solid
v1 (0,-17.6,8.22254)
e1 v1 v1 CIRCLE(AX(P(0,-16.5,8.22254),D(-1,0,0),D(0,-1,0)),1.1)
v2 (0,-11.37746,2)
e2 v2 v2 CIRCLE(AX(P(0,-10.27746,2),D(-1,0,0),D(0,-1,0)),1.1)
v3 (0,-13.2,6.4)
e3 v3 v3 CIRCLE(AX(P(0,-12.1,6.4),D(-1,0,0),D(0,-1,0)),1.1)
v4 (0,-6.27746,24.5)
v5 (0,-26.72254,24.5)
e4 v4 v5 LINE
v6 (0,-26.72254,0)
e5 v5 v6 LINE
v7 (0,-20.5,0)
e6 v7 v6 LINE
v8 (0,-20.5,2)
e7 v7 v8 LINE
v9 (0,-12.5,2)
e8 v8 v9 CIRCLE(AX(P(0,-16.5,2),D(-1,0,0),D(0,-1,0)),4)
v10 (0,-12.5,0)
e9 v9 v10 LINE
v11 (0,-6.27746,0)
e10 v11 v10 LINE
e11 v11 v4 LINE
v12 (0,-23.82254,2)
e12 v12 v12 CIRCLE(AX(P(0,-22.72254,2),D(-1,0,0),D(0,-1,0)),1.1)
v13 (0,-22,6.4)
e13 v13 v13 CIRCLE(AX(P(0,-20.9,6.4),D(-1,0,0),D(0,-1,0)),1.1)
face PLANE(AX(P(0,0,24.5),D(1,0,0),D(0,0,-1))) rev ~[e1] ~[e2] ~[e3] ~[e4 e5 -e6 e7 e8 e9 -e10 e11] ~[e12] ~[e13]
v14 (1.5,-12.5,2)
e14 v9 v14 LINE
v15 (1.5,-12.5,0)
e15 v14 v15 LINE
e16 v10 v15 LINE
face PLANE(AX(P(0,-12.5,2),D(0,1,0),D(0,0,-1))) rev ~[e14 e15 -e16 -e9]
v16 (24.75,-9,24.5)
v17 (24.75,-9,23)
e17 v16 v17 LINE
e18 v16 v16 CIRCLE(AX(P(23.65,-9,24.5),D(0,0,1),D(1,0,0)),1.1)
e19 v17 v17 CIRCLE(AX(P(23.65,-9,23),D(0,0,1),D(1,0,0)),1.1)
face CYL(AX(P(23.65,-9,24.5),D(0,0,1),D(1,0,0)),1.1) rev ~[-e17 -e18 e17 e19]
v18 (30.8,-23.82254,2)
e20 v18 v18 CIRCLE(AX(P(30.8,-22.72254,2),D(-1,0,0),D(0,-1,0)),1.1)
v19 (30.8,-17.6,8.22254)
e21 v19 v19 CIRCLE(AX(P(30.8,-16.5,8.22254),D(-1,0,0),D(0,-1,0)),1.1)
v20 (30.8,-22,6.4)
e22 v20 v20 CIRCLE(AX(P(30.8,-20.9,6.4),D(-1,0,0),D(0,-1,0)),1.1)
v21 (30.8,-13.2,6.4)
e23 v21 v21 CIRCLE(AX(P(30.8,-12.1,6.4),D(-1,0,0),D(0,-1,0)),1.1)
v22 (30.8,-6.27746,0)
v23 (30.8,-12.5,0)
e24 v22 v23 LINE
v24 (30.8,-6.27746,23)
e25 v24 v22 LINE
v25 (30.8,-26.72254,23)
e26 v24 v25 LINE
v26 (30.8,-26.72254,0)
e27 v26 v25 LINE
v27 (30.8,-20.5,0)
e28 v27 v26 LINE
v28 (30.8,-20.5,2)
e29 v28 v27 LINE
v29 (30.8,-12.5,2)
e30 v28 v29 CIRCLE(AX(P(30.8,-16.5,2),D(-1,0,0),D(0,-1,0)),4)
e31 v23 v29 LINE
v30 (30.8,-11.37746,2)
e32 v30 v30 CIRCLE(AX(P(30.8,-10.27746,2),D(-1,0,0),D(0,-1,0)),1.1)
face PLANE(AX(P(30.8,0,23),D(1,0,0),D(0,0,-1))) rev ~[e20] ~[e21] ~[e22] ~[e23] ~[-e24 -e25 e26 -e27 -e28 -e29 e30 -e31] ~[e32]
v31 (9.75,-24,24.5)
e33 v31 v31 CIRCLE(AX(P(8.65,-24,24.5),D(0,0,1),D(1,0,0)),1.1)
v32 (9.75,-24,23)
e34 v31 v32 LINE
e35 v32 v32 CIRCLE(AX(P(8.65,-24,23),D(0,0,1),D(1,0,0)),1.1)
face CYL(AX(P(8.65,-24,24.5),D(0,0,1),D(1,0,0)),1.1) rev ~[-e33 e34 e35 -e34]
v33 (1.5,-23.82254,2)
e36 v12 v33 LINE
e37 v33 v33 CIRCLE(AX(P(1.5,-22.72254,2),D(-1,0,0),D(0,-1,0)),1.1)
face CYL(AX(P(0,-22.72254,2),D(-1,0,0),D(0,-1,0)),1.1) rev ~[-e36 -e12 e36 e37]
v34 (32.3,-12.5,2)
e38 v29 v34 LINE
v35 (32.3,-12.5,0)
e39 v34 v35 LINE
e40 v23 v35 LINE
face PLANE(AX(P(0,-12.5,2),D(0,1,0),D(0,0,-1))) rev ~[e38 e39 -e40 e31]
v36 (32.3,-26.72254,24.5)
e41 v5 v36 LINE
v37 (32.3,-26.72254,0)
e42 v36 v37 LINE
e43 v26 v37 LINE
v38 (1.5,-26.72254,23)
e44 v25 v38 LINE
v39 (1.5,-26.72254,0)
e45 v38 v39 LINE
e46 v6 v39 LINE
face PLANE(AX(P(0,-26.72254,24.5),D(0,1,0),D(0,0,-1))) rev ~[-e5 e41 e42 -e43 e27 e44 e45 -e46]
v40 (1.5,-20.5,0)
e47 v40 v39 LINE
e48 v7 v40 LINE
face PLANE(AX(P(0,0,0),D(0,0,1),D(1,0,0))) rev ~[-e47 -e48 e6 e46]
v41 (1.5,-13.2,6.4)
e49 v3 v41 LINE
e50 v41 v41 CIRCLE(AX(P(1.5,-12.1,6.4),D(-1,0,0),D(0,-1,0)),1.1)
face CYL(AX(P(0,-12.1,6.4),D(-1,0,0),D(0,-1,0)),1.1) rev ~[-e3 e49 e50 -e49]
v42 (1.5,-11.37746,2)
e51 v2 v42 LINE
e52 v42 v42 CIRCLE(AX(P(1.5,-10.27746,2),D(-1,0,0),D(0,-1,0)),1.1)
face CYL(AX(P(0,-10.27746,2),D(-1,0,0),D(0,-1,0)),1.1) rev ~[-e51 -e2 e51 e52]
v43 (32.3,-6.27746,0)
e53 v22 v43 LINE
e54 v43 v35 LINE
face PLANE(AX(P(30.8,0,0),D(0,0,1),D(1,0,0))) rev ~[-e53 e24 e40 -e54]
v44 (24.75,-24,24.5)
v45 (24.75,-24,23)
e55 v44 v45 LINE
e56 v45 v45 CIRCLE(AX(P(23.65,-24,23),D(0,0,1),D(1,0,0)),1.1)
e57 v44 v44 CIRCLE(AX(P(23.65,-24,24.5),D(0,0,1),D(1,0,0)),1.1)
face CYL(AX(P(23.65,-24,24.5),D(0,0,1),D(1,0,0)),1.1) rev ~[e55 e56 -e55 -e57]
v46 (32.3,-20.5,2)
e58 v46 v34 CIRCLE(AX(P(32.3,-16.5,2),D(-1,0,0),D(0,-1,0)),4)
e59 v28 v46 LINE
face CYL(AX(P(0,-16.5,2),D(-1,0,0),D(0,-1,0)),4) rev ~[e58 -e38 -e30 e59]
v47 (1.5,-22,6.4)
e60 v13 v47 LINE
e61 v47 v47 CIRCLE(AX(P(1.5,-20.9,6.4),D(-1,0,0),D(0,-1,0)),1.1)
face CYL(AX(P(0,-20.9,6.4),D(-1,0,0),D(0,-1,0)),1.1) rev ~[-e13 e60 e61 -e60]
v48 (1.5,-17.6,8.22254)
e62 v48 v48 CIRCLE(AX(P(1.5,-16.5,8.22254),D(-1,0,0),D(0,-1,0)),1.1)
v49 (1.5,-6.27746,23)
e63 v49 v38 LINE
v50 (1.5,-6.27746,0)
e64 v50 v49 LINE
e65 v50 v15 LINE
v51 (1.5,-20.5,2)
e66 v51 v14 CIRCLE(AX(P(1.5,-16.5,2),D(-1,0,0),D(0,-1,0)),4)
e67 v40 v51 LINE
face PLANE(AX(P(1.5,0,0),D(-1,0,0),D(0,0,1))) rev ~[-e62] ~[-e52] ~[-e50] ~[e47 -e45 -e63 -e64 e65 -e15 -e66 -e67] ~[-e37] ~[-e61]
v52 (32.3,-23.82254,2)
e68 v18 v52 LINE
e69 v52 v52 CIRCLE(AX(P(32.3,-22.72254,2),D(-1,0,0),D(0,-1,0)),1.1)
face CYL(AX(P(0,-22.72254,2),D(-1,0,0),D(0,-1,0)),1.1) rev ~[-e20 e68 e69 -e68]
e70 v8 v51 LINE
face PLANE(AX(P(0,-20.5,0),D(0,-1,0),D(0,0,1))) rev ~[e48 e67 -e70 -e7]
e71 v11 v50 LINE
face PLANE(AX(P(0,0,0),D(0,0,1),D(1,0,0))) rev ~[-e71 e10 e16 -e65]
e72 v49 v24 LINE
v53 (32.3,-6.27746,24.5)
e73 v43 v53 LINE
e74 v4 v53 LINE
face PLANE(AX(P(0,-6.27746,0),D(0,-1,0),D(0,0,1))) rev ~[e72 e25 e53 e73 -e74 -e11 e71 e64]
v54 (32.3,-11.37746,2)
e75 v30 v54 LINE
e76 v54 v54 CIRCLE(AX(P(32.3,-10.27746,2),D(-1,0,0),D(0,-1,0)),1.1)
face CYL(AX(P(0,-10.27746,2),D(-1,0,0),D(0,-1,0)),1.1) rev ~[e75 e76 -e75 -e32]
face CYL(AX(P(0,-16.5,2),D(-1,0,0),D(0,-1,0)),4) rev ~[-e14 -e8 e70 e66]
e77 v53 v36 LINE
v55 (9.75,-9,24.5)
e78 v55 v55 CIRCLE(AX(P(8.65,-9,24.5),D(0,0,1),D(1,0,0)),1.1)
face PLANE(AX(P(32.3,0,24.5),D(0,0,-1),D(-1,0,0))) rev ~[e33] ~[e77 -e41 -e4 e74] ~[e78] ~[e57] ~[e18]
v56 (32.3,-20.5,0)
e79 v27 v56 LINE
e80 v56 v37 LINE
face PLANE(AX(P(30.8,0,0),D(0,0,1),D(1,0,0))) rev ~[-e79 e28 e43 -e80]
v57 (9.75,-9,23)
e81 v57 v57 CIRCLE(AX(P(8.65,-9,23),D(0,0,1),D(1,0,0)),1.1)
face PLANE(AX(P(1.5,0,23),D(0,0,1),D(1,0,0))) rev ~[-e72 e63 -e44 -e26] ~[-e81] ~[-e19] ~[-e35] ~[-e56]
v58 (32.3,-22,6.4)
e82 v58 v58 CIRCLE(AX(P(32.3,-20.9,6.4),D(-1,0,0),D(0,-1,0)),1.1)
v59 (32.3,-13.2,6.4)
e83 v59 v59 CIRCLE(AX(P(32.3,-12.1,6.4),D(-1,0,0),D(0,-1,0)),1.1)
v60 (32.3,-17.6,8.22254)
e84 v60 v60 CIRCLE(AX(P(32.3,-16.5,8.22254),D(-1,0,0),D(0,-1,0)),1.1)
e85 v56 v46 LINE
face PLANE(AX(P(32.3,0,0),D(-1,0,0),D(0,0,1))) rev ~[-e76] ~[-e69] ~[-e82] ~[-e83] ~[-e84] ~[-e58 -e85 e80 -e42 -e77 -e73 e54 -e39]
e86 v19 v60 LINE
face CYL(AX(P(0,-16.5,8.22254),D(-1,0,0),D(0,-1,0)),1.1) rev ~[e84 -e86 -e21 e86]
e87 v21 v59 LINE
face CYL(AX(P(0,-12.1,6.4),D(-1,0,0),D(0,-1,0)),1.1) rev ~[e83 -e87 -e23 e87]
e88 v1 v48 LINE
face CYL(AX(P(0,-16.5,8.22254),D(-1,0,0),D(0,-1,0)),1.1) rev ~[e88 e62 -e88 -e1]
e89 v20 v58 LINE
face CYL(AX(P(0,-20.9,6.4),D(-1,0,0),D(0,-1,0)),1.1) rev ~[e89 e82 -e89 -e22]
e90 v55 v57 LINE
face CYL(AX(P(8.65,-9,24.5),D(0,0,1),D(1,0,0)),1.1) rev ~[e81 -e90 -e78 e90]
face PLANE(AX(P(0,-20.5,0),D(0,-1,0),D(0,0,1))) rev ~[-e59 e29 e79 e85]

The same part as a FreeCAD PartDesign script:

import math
import FreeCAD as App
import Part
import Sketcher

doc = App.newDocument("Part")
params = doc.addObject("Spreadsheet::Sheet", "Params")
for row, (alias, value) in enumerate([
    ("sketch1_height", "23 mm"),
    ("sketch1_width", "1.5 mm"),
    ("sketch1_width2", "29.3 mm"),
    ("sketch1_height2", "24.5 mm"),
    ("pad1_length", "33 mm"),
    ("sketch2_radius", "4 mm"),
    ("sketch2_diameter", "2.2 mm"),
    ("sketch2_height", "2 mm"),
    ("sketch2_height2", "24.5 mm"),
    ("sketch3_diameter", "2.2 mm"),
], start=1):
    params.set(f"A{row}", alias)
    params.set(f"B{row}", "=" + value)
    params.setAlias(f"B{row}", alias)

body = doc.addObject("PartDesign::Body", "Body")

# Sketch on XZ plane
sketch1 = doc.addObject("Sketcher::SketchObject", "Sketch")
body.addObject(sketch1)
sketch1.AttachmentSupport = (doc.XZ_Plane, [""])
sketch1.MapMode = "FlatFace"
sketch1.addGeometry([
    Part.LineSegment(App.Vector(0, 24.5, 0), App.Vector(0, 0, 0)),  # 0
    Part.LineSegment(App.Vector(0, 0, 0), App.Vector(1.5, 0, 0)),  # 1
    Part.LineSegment(App.Vector(1.5, 0, 0), App.Vector(1.5, 23, 0)),  # 2
    Part.LineSegment(App.Vector(1.5, 23, 0), App.Vector(30.8, 23, 0)),  # 3
    Part.LineSegment(App.Vector(30.8, 23, 0), App.Vector(30.8, 0, 0)),  # 4
    Part.LineSegment(App.Vector(30.8, 0, 0), App.Vector(32.3, 0, 0)),  # 5
    Part.LineSegment(App.Vector(32.3, 0, 0), App.Vector(32.3, 24.5, 0)),  # 6
    Part.LineSegment(App.Vector(32.3, 24.5, 0), App.Vector(0, 24.5, 0)),  # 7
], False)
sketch1.addConstraint([
    Sketcher.Constraint("Coincident", 0, 2, 1, 1),
    Sketcher.Constraint("Coincident", 1, 2, 2, 1),
    Sketcher.Constraint("Coincident", 2, 2, 3, 1),
    Sketcher.Constraint("Coincident", 3, 2, 4, 1),
    Sketcher.Constraint("Coincident", 4, 2, 5, 1),
    Sketcher.Constraint("Coincident", 5, 2, 6, 1),
    Sketcher.Constraint("Coincident", 6, 2, 7, 1),
    Sketcher.Constraint("Coincident", 7, 2, 0, 1),
    Sketcher.Constraint("Vertical", 0),
    Sketcher.Constraint("Horizontal", 1),
    Sketcher.Constraint("Vertical", 2),
    Sketcher.Constraint("Horizontal", 3),
    Sketcher.Constraint("Vertical", 4),
    Sketcher.Constraint("Horizontal", 5),
    Sketcher.Constraint("Vertical", 6),
    Sketcher.Constraint("Horizontal", 7),
    Sketcher.Constraint("Coincident", 0, 2, -1, 1),
    Sketcher.Constraint("PointOnObject", 4, 2, -1),
    Sketcher.Constraint("Equal", 1, 5),
    Sketcher.Constraint("DistanceY", 2, 1, 2, 2, 23.0),
    Sketcher.Constraint("DistanceX", 1, 1, 1, 2, 1.5),
    Sketcher.Constraint("DistanceX", 3, 1, 3, 2, 29.3),
    Sketcher.Constraint("DistanceY", 0, 2, 0, 1, 24.5),
])
sketch1.setExpression("Constraints[19]", "Params.sketch1_height")
sketch1.setExpression("Constraints[20]", "Params.sketch1_width")
sketch1.setExpression("Constraints[21]", "Params.sketch1_width2")
sketch1.setExpression("Constraints[22]", "Params.sketch1_height2")
pad1 = doc.addObject("PartDesign::Pad", "Pad")
body.addObject(pad1)
pad1.Profile = sketch1
pad1.setExpression("Length", "Params.pad1_length")

# Sketch on YZ plane
sketch2 = doc.addObject("Sketcher::SketchObject", "Sketch001")
body.addObject(sketch2)
sketch2.AttachmentSupport = (doc.YZ_Plane, [""])
sketch2.MapMode = "FlatFace"
sketch2.addGeometry([
    Part.LineSegment(App.Vector(-20.5, 0, 0), App.Vector(-20.5, 2, 0)),  # 0
    Part.ArcOfCircle(Part.Circle(App.Vector(-16.5, 2, 0), App.Vector(0, 0, 1), 4), math.radians(0), math.radians(180)),  # 1
    Part.LineSegment(App.Vector(-12.5, 2, 0), App.Vector(-12.5, 0, 0)),  # 2
    Part.LineSegment(App.Vector(-12.5, 0, 0), App.Vector(-20.5, 0, 0)),  # 3
    Part.Circle(App.Vector(-22.7, 2, 0), App.Vector(0, 0, 1), 1.1),  # 4
    Part.Circle(App.Vector(-20.9, 6.4, 0), App.Vector(0, 0, 1), 1.1),  # 5
    Part.Circle(App.Vector(-16.5, 8.2, 0), App.Vector(0, 0, 1), 1.1),  # 6
    Part.Circle(App.Vector(-12.1, 6.4, 0), App.Vector(0, 0, 1), 1.1),  # 7
    Part.Circle(App.Vector(-10.3, 2, 0), App.Vector(0, 0, 1), 1.1),  # 8
    Part.LineSegment(App.Vector(0, 0, 0), App.Vector(-6.3, 0, 0)),  # 9
    Part.LineSegment(App.Vector(-6.3, 0, 0), App.Vector(-6.3, 24.5, 0)),  # 10
    Part.LineSegment(App.Vector(-6.3, 24.5, 0), App.Vector(0, 24.5, 0)),  # 11
    Part.LineSegment(App.Vector(0, 24.5, 0), App.Vector(0, 0, 0)),  # 12
    Part.LineSegment(App.Vector(-26.7, 0, 0), App.Vector(-33, 0, 0)),  # 13
    Part.LineSegment(App.Vector(-33, 0, 0), App.Vector(-33, 24.5, 0)),  # 14
    Part.LineSegment(App.Vector(-33, 24.5, 0), App.Vector(-26.7, 24.5, 0)),  # 15
    Part.LineSegment(App.Vector(-26.7, 24.5, 0), App.Vector(-26.7, 0, 0)),  # 16
], False)
sketch2.addConstraint([
    Sketcher.Constraint("Tangent", 0, 2, 1, 2),
    Sketcher.Constraint("Tangent", 1, 1, 2, 1),
    Sketcher.Constraint("Coincident", 2, 2, 3, 1),
    Sketcher.Constraint("Coincident", 3, 2, 0, 1),
    Sketcher.Constraint("Coincident", 9, 2, 10, 1),
    Sketcher.Constraint("Coincident", 10, 2, 11, 1),
    Sketcher.Constraint("Coincident", 11, 2, 12, 1),
    Sketcher.Constraint("Coincident", 12, 2, 9, 1),
    Sketcher.Constraint("Coincident", 13, 2, 14, 1),
    Sketcher.Constraint("Coincident", 14, 2, 15, 1),
    Sketcher.Constraint("Coincident", 15, 2, 16, 1),
    Sketcher.Constraint("Coincident", 16, 2, 13, 1),
    Sketcher.Constraint("Vertical", 0),
    Sketcher.Constraint("Vertical", 2),
    Sketcher.Constraint("Horizontal", 3),
    Sketcher.Constraint("Horizontal", 9),
    Sketcher.Constraint("Vertical", 10),
    Sketcher.Constraint("Horizontal", 11),
    Sketcher.Constraint("Vertical", 12),
    Sketcher.Constraint("Horizontal", 13),
    Sketcher.Constraint("Vertical", 14),
    Sketcher.Constraint("Horizontal", 15),
    Sketcher.Constraint("Vertical", 16),
    Sketcher.Constraint("Coincident", 12, 2, -1, 1),
    Sketcher.Constraint("Equal", 4, 5),
    Sketcher.Constraint("Equal", 5, 6),
    Sketcher.Constraint("Equal", 6, 7),
    Sketcher.Constraint("Equal", 7, 8),
    Sketcher.Constraint("PointOnObject", 2, 2, -1),
    Sketcher.Constraint("PointOnObject", 13, 2, -1),
    Sketcher.Constraint("Horizontal", 1, 3, 4, 3),
    Sketcher.Constraint("Horizontal", 5, 3, 7, 3),
    Sketcher.Constraint("Horizontal", 4, 3, 8, 3),
    Sketcher.Constraint("Horizontal", 11, 2, 14, 2),
    Sketcher.Constraint("Vertical", 1, 3, 6, 3),
    Sketcher.Constraint("Equal", 11, 13),
    Sketcher.Constraint("Radius", 1, 4.0),
    Sketcher.Constraint("Diameter", 4, 2.2),
    Sketcher.Constraint("DistanceY", 0, 1, 0, 2, 2.0),
    Sketcher.Constraint("DistanceY", 10, 1, 10, 2, 24.5),
    Sketcher.Constraint("DistanceX", 13, 2, -1, 1, 33.0),
    Sketcher.Constraint("DistanceX", 8, 3, 9, 2, 4.0),
    Sketcher.Constraint("DistanceX", 15, 2, 4, 3, 4.0),
    Sketcher.Constraint("DistanceX", 1, 3, -1, 1, 16.5),
    Sketcher.Constraint("DistanceX", 5, 3, -1, 1, 20.9),
    Sketcher.Constraint("DistanceY", -1, 1, 5, 3, 6.4),
    Sketcher.Constraint("DistanceX", 7, 3, -1, 1, 12.1),
    Sketcher.Constraint("DistanceX", 9, 2, 9, 1, 6.27746),
    Sketcher.Constraint("DistanceY", -1, 1, 6, 3, 8.22254),
])
sketch2.setExpression("Constraints[36]", "Params.sketch2_radius")
sketch2.setExpression("Constraints[37]", "Params.sketch2_diameter")
sketch2.setExpression("Constraints[38]", "Params.sketch2_height")
sketch2.setExpression("Constraints[39]", "Params.sketch2_height2")
pocket1 = doc.addObject("PartDesign::Pocket", "Pocket")
body.addObject(pocket1)
pocket1.Profile = sketch2
pocket1.Type = "ThroughAll"
pocket1.Reversed = True

# Sketch on XY plane
sketch3 = doc.addObject("Sketcher::SketchObject", "Sketch002")
body.addObject(sketch3)
sketch3.AttachmentSupport = (doc.XY_Plane, [""])
sketch3.MapMode = "FlatFace"
sketch3.AttachmentOffset = App.Placement(App.Vector(0, 0, 24.5), App.Rotation())
sketch3.addGeometry([
    Part.Circle(App.Vector(8.7, -9, 0), App.Vector(0, 0, 1), 1.1),
    Part.Circle(App.Vector(23.6, -9, 0), App.Vector(0, 0, 1), 1.1),
    Part.Circle(App.Vector(8.7, -24, 0), App.Vector(0, 0, 1), 1.1),
    Part.Circle(App.Vector(23.6, -24, 0), App.Vector(0, 0, 1), 1.1),
], False)
sketch3.addConstraint([
    Sketcher.Constraint("Equal", 0, 1),
    Sketcher.Constraint("Equal", 1, 2),
    Sketcher.Constraint("Equal", 2, 3),
    Sketcher.Constraint("Horizontal", 0, 3, 1, 3),
    Sketcher.Constraint("Horizontal", 2, 3, 3, 3),
    Sketcher.Constraint("Vertical", 0, 3, 2, 3),
    Sketcher.Constraint("Vertical", 1, 3, 3, 3),
    Sketcher.Constraint("Diameter", 0, 2.2),
    Sketcher.Constraint("DistanceY", 0, 3, -1, 1, 9.0),
    Sketcher.Constraint("DistanceY", 2, 3, -1, 1, 24.0),
    Sketcher.Constraint("DistanceX", 0, 3, 1, 3, 15.0),
    Sketcher.Constraint("DistanceX", -1, 1, 0, 3, 8.65),
])
sketch3.setExpression("Constraints[7]", "Params.sketch3_diameter")
pocket2 = doc.addObject("PartDesign::Pocket", "Pocket001")
body.addObject(pocket2)
pocket2.Profile = sketch3
pocket2.Type = "ThroughAll"

doc.recompute()
